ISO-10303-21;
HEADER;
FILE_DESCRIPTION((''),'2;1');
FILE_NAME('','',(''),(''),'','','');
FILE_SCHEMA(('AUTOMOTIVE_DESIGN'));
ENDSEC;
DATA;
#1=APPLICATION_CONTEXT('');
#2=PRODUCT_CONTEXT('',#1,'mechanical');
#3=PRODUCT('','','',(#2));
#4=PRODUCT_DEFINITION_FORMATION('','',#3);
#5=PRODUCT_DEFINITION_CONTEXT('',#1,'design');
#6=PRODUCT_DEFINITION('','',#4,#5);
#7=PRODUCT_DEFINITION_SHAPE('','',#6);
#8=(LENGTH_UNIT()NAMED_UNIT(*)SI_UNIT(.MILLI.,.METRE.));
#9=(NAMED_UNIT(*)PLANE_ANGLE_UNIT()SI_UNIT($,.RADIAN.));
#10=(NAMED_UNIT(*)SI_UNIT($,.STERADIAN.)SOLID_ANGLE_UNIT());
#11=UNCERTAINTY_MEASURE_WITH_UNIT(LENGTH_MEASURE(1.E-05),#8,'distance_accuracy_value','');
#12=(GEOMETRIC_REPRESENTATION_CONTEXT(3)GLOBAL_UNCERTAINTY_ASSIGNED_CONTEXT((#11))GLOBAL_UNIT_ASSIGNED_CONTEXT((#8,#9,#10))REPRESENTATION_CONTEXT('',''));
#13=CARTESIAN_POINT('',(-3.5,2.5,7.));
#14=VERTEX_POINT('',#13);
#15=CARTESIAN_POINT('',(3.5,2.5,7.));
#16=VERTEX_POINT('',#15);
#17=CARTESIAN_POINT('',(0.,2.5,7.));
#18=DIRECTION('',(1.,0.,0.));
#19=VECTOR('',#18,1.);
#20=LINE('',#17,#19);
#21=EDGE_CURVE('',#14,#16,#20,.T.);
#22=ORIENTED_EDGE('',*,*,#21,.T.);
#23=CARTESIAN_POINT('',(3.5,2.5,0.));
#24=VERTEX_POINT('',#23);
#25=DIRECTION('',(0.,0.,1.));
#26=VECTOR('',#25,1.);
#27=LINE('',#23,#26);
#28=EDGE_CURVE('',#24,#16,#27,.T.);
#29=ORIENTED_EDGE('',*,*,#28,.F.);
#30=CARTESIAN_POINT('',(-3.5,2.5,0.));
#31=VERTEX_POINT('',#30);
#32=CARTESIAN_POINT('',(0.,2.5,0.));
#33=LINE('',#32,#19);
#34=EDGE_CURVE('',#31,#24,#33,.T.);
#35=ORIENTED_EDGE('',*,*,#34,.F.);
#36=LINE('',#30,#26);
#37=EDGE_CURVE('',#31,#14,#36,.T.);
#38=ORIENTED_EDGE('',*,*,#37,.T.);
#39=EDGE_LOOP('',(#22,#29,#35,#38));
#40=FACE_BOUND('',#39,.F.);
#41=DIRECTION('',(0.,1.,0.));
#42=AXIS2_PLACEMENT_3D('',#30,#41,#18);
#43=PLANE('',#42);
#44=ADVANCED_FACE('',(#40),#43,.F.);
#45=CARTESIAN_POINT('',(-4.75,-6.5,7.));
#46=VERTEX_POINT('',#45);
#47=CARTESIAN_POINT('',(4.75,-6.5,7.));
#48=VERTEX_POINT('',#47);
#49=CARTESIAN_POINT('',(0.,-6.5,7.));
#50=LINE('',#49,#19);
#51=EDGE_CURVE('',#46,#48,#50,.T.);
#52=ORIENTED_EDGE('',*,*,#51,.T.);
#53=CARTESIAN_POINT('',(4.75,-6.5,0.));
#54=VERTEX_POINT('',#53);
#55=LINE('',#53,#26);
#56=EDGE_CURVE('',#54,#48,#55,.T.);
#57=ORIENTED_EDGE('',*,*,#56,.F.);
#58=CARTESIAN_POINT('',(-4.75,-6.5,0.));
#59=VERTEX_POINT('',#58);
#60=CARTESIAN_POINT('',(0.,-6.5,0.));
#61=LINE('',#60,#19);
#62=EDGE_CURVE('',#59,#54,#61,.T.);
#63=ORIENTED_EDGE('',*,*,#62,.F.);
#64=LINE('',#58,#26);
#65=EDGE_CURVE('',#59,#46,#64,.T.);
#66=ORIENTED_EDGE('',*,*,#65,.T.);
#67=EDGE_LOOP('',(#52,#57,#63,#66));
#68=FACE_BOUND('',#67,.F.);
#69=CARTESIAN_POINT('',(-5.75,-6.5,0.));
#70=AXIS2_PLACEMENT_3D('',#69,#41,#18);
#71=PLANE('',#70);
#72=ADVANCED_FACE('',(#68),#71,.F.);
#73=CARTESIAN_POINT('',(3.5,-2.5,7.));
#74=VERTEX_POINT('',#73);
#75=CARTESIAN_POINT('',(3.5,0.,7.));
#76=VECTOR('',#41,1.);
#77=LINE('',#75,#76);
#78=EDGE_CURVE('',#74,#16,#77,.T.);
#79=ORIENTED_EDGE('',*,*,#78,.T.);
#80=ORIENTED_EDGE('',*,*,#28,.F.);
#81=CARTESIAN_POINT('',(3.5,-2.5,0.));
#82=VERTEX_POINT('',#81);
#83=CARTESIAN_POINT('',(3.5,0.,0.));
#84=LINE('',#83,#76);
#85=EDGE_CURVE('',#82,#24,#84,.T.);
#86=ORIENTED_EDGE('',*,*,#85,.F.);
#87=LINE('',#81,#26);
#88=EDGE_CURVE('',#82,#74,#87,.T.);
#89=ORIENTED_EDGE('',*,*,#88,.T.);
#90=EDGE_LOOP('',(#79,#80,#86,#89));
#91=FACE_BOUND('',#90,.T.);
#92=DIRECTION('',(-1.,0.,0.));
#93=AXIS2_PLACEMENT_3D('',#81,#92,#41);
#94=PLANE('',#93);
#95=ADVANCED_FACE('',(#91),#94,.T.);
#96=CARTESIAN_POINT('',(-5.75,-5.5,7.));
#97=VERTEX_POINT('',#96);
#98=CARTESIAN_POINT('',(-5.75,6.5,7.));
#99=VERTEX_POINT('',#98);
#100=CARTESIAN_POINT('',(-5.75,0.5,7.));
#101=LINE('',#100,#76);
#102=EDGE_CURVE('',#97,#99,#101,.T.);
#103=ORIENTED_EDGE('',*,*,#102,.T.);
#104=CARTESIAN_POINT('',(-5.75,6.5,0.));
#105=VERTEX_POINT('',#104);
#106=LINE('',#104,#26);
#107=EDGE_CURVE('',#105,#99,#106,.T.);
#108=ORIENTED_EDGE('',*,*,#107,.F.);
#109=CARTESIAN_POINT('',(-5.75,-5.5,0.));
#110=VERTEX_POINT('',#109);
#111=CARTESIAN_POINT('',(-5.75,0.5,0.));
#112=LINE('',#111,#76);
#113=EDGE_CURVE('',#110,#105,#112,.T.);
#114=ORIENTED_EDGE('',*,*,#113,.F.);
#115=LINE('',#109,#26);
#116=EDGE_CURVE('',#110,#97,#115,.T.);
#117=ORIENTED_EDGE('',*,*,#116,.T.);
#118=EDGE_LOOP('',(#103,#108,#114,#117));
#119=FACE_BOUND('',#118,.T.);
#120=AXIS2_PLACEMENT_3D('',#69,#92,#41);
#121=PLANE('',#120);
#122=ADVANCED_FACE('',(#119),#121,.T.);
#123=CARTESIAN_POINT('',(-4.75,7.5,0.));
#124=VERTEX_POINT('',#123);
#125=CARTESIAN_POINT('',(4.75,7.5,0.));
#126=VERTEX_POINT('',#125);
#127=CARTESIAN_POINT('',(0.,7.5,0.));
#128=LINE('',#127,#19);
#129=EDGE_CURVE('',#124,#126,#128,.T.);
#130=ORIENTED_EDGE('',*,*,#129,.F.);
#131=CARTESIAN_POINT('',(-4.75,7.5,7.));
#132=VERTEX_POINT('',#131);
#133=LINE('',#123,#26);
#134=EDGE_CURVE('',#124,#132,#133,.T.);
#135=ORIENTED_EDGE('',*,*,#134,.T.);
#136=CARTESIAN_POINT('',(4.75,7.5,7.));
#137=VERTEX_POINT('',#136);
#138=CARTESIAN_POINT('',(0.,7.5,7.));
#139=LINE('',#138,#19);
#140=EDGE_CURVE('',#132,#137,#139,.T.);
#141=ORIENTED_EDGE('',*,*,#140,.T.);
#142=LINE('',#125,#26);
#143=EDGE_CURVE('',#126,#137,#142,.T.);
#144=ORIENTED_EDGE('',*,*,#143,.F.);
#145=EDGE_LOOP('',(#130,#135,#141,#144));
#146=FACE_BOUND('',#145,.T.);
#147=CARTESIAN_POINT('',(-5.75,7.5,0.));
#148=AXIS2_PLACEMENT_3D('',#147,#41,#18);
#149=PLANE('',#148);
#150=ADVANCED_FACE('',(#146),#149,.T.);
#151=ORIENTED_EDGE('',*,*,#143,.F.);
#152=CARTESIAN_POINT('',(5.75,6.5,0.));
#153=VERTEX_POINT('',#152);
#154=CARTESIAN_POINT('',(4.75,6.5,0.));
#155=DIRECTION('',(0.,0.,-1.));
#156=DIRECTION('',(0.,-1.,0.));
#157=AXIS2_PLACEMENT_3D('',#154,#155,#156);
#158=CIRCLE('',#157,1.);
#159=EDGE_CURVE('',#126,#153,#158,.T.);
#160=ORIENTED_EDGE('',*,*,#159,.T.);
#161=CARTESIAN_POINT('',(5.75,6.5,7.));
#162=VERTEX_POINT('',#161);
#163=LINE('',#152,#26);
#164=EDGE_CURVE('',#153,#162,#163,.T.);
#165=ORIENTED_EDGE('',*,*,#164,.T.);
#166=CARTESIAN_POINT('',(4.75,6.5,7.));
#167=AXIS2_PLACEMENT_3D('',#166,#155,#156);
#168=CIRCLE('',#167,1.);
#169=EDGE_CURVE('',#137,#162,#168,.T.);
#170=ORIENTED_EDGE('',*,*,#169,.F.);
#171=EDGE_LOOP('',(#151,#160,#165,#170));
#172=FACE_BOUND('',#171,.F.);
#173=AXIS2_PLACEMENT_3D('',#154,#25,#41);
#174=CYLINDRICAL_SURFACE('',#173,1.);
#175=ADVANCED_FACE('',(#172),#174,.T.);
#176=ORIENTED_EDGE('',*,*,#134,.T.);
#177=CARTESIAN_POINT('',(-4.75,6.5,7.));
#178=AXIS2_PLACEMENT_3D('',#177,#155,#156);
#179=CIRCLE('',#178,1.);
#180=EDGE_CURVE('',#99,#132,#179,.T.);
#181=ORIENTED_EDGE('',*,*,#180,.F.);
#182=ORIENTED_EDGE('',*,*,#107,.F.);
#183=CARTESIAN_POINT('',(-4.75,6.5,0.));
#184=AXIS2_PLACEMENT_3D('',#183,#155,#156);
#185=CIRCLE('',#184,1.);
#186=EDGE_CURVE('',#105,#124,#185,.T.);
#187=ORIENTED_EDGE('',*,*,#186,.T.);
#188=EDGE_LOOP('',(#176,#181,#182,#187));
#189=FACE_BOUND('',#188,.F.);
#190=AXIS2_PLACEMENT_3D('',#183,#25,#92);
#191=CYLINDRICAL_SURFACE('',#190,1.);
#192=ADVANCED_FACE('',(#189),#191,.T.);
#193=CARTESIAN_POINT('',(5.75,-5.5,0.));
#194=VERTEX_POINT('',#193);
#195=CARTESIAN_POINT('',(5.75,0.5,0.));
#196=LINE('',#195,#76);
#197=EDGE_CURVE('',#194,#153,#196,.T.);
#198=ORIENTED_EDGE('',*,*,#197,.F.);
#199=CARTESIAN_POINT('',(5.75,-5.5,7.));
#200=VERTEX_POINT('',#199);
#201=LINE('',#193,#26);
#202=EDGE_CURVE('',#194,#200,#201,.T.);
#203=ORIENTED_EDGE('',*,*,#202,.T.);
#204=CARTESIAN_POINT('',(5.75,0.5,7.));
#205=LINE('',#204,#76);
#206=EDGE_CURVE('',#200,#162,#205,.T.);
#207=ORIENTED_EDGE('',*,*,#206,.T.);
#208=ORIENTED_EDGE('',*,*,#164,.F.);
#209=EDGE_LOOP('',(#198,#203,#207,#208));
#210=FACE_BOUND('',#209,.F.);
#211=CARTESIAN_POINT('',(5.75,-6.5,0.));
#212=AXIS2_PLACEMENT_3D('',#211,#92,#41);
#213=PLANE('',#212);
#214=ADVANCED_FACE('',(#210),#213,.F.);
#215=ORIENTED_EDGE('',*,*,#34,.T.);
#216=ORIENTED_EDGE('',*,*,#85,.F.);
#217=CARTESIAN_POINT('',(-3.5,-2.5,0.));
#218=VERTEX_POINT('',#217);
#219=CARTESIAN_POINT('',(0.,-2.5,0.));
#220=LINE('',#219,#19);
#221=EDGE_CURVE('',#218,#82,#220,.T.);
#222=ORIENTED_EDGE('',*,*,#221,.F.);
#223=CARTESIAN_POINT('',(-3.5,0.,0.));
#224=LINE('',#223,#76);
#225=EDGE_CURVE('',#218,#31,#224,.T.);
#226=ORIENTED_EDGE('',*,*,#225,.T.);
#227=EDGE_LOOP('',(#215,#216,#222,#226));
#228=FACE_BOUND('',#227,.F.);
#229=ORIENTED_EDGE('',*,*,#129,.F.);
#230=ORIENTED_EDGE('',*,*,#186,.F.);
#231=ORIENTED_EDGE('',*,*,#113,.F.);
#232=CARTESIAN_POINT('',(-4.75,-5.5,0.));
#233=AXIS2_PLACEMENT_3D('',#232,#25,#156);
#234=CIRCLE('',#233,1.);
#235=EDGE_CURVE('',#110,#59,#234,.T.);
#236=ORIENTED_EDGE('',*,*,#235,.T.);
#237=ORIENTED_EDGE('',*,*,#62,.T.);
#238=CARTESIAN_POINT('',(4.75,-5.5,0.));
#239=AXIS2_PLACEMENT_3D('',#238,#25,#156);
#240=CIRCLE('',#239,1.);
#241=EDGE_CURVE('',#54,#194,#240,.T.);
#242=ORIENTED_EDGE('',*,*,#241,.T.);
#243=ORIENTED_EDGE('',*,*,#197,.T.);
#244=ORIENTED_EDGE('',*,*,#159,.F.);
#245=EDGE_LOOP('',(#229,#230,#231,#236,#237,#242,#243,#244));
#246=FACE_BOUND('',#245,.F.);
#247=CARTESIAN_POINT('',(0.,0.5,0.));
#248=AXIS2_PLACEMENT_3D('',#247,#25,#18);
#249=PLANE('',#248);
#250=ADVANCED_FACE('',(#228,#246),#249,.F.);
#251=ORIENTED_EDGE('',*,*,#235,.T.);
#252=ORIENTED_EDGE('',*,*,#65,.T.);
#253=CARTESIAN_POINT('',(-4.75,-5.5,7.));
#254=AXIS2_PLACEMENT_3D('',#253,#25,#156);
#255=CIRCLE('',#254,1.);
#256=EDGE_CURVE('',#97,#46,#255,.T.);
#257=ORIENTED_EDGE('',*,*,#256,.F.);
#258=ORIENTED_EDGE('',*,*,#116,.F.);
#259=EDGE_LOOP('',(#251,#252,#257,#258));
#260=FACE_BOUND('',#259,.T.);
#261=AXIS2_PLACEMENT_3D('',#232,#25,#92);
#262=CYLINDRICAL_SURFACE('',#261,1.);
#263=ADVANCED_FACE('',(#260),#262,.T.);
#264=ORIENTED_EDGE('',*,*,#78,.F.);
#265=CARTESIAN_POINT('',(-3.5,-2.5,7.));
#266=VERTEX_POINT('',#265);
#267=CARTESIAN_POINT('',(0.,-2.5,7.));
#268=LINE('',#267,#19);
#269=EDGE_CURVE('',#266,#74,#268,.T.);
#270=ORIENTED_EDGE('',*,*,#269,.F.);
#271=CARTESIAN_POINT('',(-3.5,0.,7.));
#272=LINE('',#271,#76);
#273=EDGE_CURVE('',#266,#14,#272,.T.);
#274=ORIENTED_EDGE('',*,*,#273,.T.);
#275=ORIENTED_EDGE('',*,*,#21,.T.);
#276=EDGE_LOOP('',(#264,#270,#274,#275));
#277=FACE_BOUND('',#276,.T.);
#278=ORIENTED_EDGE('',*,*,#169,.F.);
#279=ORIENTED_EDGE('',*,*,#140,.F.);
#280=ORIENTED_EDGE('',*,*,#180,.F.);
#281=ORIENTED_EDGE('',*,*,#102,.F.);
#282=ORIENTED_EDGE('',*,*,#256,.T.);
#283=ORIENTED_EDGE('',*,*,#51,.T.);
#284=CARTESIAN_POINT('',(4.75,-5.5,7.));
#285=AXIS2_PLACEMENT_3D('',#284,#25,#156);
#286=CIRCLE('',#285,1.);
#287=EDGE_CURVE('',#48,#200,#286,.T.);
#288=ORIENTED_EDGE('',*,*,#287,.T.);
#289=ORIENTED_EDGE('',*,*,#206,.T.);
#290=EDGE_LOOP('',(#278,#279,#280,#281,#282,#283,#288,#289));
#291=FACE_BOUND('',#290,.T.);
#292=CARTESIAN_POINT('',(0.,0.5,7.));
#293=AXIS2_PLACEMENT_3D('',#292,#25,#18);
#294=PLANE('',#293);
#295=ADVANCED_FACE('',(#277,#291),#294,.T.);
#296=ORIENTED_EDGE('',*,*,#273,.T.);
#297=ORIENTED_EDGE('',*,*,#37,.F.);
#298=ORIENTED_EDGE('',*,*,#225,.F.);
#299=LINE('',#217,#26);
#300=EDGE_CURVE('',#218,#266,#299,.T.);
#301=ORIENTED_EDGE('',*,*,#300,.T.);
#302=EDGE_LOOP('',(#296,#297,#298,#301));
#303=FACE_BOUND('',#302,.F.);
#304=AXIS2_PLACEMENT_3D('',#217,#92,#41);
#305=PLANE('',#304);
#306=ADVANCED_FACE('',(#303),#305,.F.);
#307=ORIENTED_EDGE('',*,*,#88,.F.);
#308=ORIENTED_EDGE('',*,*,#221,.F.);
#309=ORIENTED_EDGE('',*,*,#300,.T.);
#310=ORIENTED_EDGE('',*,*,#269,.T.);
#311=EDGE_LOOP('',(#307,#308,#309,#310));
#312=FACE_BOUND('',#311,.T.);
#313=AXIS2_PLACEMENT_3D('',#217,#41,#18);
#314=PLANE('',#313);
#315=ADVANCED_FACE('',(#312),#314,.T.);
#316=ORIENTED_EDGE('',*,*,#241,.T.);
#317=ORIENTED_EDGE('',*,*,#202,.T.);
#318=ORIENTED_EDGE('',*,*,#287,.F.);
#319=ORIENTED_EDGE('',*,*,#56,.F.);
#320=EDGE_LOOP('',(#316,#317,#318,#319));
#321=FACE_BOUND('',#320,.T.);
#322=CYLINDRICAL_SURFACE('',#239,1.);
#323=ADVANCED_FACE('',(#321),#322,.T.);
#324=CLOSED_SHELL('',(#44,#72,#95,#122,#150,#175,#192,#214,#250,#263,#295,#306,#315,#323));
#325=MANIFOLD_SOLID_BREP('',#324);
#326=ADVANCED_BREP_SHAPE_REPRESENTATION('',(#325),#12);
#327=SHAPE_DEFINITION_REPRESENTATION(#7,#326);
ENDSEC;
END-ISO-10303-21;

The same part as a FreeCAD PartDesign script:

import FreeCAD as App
import Part
import Sketcher

V = App.Vector


def edges_at(feature, points):
    """Names of the edges that pass closest to the given points."""
    edges = feature.Shape.Edges
    near = lambda p: min(range(len(edges)), key=lambda i: edges[i].distToShape(Part.Vertex(*p))[0])
    return sorted({f"Edge{near(p) + 1}" for p in points})

doc = App.newDocument("Part")
body = doc.addObject("PartDesign::Body", "Body")

# Sketch on XY plane
sketch1 = doc.addObject("Sketcher::SketchObject", "Sketch")
body.addObject(sketch1)
sketch1.AttachmentSupport = (doc.XY_Plane, [""])
sketch1.MapMode = "FlatFace"
sketch1.addGeometry([
    Part.LineSegment(V(-5.75, 7.5, 0), V(-5.75, -6.5, 0)),  # 0
    Part.LineSegment(V(-5.75, -6.5, 0), V(5.75, -6.5, 0)),  # 1
    Part.LineSegment(V(5.75, -6.5, 0), V(5.75, 7.5, 0)),  # 2
    Part.LineSegment(V(5.75, 7.5, 0), V(-5.75, 7.5, 0)),  # 3
    Part.LineSegment(V(3.5, -2.5, 0), V(-3.5, -2.5, 0)),  # 4
    Part.LineSegment(V(-3.5, -2.5, 0), V(-3.5, 2.5, 0)),  # 5
    Part.LineSegment(V(-3.5, 2.5, 0), V(3.5, 2.5, 0)),  # 6
    Part.LineSegment(V(3.5, 2.5, 0), V(3.5, -2.5, 0)),  # 7
], False)
sketch1.addConstraint([
    Sketcher.Constraint("Coincident", 0, 2, 1, 1),
    Sketcher.Constraint("Coincident", 1, 2, 2, 1),
    Sketcher.Constraint("Coincident", 2, 2, 3, 1),
    Sketcher.Constraint("Coincident", 3, 2, 0, 1),
    Sketcher.Constraint("Coincident", 4, 2, 5, 1),
    Sketcher.Constraint("Coincident", 5, 2, 6, 1),
    Sketcher.Constraint("Coincident", 6, 2, 7, 1),
    Sketcher.Constraint("Coincident", 7, 2, 4, 1),
    Sketcher.Constraint("Vertical", 0),
    Sketcher.Constraint("Horizontal", 1),
    Sketcher.Constraint("Vertical", 2),
    Sketcher.Constraint("Horizontal", 3),
    Sketcher.Constraint("Horizontal", 4),
    Sketcher.Constraint("Vertical", 5),
    Sketcher.Constraint("Horizontal", 6),
    Sketcher.Constraint("Vertical", 7),
    Sketcher.Constraint("Symmetric", 4, 2, 6, 2, -1, 1),
    Sketcher.Constraint("DistanceX", 4, 2, 4, 1, 7.0),
    Sketcher.Constraint("DistanceY", 0, 2, 0, 1, 14.0),
    Sketcher.Constraint("DistanceY", 5, 1, 5, 2, 5.0),
    Sketcher.Constraint("DistanceX", 1, 1, 1, 2, 11.5),
    Sketcher.Constraint("DistanceY", 0, 2, 4, 2, 4.0),
    Sketcher.Constraint("DistanceX", 0, 2, -1, 1, 5.75),
])
pad1 = doc.addObject("PartDesign::Pad", "Pad")
body.addObject(pad1)
pad1.Profile = sketch1
pad1.Length = 7
doc.recompute()

fillet = doc.addObject("PartDesign::Fillet", "Fillet")
body.addObject(fillet)
fillet.Base = (pad1, edges_at(pad1, [
    (-5.75, -6.5, 3.5),
    (5.75, -6.5, 3.5),
    (5.75, 7.5, 3.5),
    (-5.75, 7.5, 3.5),
]))
fillet.Radius = 1

doc.recompute()
